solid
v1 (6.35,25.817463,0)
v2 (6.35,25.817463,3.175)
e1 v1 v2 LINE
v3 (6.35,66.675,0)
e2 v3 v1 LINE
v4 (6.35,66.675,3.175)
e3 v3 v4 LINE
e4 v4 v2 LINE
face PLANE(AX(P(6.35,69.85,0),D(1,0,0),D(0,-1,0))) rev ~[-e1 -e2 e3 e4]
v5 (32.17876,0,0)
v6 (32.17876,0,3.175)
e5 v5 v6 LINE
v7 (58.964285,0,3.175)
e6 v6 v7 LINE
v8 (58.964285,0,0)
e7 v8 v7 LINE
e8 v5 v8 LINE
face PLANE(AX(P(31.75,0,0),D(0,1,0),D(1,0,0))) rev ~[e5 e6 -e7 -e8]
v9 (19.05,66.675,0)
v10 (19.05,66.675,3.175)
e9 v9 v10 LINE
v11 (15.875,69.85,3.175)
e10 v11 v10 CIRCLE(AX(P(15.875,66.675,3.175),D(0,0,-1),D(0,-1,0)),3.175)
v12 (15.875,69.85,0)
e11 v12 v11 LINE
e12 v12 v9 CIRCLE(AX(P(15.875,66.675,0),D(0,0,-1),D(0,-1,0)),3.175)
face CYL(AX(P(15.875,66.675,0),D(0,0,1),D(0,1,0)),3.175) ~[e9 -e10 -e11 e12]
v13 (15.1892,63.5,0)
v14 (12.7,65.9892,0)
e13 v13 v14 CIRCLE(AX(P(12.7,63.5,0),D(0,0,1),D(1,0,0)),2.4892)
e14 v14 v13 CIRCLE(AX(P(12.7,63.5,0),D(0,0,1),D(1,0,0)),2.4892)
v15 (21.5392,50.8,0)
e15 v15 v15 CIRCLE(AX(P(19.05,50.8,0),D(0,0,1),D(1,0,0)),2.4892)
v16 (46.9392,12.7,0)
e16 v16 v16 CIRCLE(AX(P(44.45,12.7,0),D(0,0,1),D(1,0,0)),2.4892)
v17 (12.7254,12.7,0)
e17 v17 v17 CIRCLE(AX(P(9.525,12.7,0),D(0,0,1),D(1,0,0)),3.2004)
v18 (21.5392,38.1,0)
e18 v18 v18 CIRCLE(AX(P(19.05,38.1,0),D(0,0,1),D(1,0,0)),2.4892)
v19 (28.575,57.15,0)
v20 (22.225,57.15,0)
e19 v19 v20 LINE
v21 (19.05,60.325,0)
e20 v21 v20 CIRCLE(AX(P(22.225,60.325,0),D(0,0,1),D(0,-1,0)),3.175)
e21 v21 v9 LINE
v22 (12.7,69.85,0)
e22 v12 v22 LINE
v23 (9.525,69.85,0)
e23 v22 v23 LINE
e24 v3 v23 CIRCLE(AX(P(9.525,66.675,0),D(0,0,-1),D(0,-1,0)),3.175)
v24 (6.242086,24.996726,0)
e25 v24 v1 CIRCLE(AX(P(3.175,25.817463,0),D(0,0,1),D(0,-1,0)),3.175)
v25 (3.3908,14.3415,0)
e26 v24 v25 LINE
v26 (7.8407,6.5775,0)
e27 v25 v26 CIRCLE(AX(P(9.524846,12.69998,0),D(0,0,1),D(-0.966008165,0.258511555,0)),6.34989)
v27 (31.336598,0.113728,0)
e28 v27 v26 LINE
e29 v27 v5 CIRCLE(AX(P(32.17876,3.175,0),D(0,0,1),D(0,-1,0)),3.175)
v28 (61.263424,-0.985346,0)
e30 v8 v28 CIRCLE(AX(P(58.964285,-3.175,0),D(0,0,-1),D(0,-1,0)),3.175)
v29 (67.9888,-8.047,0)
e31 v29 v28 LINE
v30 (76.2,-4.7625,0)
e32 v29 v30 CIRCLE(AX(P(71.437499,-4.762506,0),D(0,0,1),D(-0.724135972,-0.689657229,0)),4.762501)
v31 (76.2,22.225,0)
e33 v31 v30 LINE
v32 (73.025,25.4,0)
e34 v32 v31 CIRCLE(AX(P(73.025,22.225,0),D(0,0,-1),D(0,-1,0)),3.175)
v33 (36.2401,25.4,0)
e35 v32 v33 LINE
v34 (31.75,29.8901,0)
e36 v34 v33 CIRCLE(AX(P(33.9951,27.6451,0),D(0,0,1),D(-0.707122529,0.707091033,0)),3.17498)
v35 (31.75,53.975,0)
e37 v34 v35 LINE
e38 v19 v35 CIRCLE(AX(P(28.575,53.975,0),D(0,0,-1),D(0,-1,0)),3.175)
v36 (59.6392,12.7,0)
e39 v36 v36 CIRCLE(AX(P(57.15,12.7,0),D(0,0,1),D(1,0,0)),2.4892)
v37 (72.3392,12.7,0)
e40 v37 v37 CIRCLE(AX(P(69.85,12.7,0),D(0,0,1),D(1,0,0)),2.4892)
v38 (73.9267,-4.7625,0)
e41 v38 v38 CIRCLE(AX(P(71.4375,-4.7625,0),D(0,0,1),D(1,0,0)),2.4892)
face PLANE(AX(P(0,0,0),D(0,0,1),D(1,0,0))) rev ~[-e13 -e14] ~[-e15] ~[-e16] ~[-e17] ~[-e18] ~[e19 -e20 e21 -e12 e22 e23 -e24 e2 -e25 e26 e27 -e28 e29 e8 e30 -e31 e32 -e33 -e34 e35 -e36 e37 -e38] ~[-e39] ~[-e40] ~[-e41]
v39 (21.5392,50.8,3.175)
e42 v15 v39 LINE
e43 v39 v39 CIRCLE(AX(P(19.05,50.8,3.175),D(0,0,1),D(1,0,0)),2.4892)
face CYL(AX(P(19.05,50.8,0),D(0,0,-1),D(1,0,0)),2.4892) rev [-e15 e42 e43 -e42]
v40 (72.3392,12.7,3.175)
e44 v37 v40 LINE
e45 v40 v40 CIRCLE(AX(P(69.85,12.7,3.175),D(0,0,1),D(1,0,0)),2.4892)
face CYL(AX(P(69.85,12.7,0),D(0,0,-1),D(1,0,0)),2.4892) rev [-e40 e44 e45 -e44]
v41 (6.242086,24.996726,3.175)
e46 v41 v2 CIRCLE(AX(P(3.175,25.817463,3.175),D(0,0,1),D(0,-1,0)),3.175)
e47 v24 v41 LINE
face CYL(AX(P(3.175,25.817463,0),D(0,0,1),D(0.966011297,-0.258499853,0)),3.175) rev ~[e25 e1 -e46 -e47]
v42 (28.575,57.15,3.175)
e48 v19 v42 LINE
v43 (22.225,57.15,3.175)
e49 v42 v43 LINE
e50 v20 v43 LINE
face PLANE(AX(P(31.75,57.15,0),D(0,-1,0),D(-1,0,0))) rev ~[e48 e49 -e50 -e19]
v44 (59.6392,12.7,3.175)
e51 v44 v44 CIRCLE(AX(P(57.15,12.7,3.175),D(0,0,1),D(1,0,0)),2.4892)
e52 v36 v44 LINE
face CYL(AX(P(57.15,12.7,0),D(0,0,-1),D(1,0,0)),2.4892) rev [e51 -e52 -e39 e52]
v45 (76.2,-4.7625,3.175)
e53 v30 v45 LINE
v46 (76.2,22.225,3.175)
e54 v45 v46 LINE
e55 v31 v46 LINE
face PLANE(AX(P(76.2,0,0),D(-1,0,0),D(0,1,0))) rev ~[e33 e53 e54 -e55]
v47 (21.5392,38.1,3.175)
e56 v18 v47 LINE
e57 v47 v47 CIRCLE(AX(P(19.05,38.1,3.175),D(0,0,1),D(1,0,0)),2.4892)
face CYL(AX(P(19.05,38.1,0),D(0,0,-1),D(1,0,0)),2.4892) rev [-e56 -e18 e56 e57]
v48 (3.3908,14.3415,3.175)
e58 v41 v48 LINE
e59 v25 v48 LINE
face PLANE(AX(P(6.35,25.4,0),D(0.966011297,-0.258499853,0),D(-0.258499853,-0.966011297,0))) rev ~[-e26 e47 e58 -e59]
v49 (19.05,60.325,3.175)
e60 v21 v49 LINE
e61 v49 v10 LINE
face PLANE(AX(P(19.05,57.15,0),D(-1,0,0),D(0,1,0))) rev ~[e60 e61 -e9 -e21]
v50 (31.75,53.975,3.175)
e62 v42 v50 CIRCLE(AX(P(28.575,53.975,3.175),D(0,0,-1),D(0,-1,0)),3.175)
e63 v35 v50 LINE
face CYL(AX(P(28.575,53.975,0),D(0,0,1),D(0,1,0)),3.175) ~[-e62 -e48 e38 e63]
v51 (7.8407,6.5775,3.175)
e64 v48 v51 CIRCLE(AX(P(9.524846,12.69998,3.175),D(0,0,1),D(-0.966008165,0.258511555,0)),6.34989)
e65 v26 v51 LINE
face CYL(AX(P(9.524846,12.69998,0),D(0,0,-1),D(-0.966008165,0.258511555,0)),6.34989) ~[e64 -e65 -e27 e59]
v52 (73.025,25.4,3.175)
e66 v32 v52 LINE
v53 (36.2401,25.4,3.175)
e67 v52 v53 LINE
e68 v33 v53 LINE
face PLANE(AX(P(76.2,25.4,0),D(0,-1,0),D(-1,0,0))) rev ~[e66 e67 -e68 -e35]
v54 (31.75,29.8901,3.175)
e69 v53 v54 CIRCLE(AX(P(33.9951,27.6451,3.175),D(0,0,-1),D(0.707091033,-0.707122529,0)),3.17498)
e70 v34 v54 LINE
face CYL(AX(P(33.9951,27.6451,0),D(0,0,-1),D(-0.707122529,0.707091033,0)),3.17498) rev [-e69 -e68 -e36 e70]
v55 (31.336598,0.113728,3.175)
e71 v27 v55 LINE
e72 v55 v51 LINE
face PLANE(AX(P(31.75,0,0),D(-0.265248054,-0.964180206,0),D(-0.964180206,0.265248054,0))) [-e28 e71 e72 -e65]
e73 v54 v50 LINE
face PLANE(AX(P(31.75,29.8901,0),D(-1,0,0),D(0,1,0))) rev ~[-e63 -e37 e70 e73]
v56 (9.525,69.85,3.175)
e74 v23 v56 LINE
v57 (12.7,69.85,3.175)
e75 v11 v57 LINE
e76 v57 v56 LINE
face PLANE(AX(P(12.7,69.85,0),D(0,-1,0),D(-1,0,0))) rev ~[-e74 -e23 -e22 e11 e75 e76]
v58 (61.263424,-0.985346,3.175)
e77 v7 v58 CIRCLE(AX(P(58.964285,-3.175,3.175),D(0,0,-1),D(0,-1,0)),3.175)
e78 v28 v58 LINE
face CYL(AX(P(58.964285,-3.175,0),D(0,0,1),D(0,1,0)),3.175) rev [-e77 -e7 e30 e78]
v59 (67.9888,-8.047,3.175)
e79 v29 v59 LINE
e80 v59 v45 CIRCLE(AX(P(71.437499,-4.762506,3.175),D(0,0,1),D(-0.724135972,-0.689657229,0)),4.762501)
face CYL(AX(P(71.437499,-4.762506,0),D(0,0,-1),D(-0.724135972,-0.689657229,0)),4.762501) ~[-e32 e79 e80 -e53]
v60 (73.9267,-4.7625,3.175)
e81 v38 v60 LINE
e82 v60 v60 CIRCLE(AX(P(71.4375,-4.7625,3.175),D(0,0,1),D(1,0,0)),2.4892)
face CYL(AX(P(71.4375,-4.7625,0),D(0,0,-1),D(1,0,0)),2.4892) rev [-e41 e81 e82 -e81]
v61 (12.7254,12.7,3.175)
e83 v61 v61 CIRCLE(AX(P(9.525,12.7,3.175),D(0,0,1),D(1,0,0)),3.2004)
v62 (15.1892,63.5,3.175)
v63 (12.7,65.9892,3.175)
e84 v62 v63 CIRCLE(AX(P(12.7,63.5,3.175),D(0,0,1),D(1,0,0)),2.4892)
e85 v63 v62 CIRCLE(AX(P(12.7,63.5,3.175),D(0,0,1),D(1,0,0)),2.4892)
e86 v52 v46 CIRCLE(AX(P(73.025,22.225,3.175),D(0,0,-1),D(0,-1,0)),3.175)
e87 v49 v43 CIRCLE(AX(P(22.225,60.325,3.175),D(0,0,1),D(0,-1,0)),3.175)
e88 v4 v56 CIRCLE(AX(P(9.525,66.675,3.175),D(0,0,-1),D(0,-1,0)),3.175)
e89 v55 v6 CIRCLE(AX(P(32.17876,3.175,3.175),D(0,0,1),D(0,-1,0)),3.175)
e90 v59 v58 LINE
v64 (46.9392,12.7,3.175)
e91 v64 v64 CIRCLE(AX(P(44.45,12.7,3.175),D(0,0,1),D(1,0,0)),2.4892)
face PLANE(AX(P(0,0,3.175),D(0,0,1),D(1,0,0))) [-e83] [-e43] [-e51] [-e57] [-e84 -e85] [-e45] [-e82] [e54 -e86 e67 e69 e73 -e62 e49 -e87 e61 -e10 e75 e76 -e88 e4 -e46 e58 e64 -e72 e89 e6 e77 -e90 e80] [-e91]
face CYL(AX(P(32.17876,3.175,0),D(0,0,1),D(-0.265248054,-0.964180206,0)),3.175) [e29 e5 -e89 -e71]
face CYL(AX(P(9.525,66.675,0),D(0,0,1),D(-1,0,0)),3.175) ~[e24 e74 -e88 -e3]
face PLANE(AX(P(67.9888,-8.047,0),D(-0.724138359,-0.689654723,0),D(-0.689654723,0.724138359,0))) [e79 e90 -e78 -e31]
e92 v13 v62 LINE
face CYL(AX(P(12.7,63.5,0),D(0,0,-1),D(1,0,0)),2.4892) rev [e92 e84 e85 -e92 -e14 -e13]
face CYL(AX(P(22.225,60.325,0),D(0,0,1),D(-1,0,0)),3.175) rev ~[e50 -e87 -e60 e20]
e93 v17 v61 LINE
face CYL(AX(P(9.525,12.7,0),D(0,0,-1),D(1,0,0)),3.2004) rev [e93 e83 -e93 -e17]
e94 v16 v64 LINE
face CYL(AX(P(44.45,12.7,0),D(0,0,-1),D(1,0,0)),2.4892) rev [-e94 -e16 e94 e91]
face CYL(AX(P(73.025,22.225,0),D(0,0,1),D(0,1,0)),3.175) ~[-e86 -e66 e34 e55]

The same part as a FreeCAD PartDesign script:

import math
import FreeCAD as App
import Part
import Sketcher

V = App.Vector
Q = App.Units.Quantity


def edges_at(feature, points):
    """Names of the edges that pass closest to the given points."""
    edges = feature.Shape.Edges
    near = lambda p: min(range(len(edges)), key=lambda i: edges[i].distToShape(Part.Vertex(*p))[0])
    return sorted({f"Edge{near(p) + 1}" for p in points})

doc = App.newDocument("Part")
body = doc.addObject("PartDesign::Body", "Body")

sketch1 = body.newObject("Sketcher::SketchObject", "Sketch")
sketch1.AttachmentSupport = (doc.getObject("XY_Plane"), [""])
sketch1.MapMode = "FlatFace"
sketch1.addGeometry(Part.LineSegment(V(7.8, 6.6, 0), V(31.8, 0, 0)), False)
sketch1.addGeometry(Part.LineSegment(V(31.8, 0, 0), V(60.3, 0, 0)), False)
sketch1.addGeometry(Part.LineSegment(V(60.3, 0, 0), V(68, -8, 0)), False)
sketch1.addGeometry(Part.ArcOfCircle(Part.Circle(V(71.4, -4.8, 0), V(0, 0, 1), 4.8), math.radians(-136), math.radians(0)), False)
sketch1.addGeometry(Part.LineSegment(V(76.2, -4.8, 0), V(76.2, 25.4, 0)), False)
sketch1.addGeometry(Part.LineSegment(V(76.2, 25.4, 0), V(36.2, 25.4, 0)), False)
sketch1.addGeometry(Part.ArcOfCircle(Part.Circle(V(34, 27.6, 0), V(0, 0, 1), 3.2), math.radians(135), math.radians(315)), False)
sketch1.addGeometry(Part.LineSegment(V(31.8, 29.9, 0), V(31.8, 57.1, 0)), False)
sketch1.addGeometry(Part.LineSegment(V(31.8, 57.1, 0), V(19.1, 57.1, 0)), False)
sketch1.addGeometry(Part.LineSegment(V(19.1, 57.1, 0), V(19.1, 69.8, 0)), False)
sketch1.addGeometry(Part.LineSegment(V(19.1, 69.8, 0), V(12.7, 69.8, 0)), False)
sketch1.addGeometry(Part.LineSegment(V(12.7, 69.8, 0), V(6.3, 69.8, 0)), False)
sketch1.addGeometry(Part.LineSegment(V(6.3, 69.8, 0), V(6.3, 25.4, 0)), False)
sketch1.addGeometry(Part.LineSegment(V(6.3, 25.4, 0), V(3.4, 14.3, 0)), False)
sketch1.addGeometry(Part.ArcOfCircle(Part.Circle(V(9.5, 12.7, 0), V(0, 0, 1), 6.4), math.radians(165), math.radians(255)), False)
sketch1.addGeometry(Part.Circle(V(9.5, 12.7, 0), V(0, 0, 1), 3.2), False)
sketch1.addGeometry(Part.Circle(V(44.5, 12.7, 0), V(0, 0, 1), 2.5), False)
sketch1.addGeometry(Part.Circle(V(57.1, 12.7, 0), V(0, 0, 1), 2.5), False)
sketch1.addGeometry(Part.Circle(V(69.8, 12.7, 0), V(0, 0, 1), 2.5), False)
sketch1.addGeometry(Part.Circle(V(19.1, 38.1, 0), V(0, 0, 1), 2.5), False)
sketch1.addGeometry(Part.Circle(V(19.1, 50.8, 0), V(0, 0, 1), 2.5), False)
sketch1.addGeometry(Part.Circle(V(12.7, 63.5, 0), V(0, 0, 1), 2.5), False)
sketch1.addGeometry(Part.Circle(V(71.4, -4.8, 0), V(0, 0, 1), 2.5), False)
sketch1.addConstraint(Sketcher.Constraint("Coincident", 0, 2, 1, 1))
sketch1.addConstraint(Sketcher.Constraint("Coincident", 1, 2, 2, 1))
sketch1.addConstraint(Sketcher.Constraint("Tangent", 2, 2, 3, 1))
sketch1.addConstraint(Sketcher.Constraint("Tangent", 3, 2, 4, 1))
sketch1.addConstraint(Sketcher.Constraint("Coincident", 4, 2, 5, 1))
sketch1.addConstraint(Sketcher.Constraint("Coincident", 5, 2, 6, 2))
sketch1.addConstraint(Sketcher.Constraint("Coincident", 6, 1, 7, 1))
sketch1.addConstraint(Sketcher.Constraint("Coincident", 7, 2, 8, 1))
sketch1.addConstraint(Sketcher.Constraint("Coincident", 8, 2, 9, 1))
sketch1.addConstraint(Sketcher.Constraint("Coincident", 9, 2, 10, 1))
sketch1.addConstraint(Sketcher.Constraint("Coincident", 10, 2, 11, 1))
sketch1.addConstraint(Sketcher.Constraint("Coincident", 11, 2, 12, 1))
sketch1.addConstraint(Sketcher.Constraint("Coincident", 12, 2, 13, 1))
sketch1.addConstraint(Sketcher.Constraint("Tangent", 13, 2, 14, 1))
sketch1.addConstraint(Sketcher.Constraint("Tangent", 14, 2, 0, 1))
sketch1.addConstraint(Sketcher.Constraint("Horizontal", 1))
sketch1.addConstraint(Sketcher.Constraint("Vertical", 4))
sketch1.addConstraint(Sketcher.Constraint("Horizontal", 5))
sketch1.addConstraint(Sketcher.Constraint("Vertical", 7))
sketch1.addConstraint(Sketcher.Constraint("Horizontal", 8))
sketch1.addConstraint(Sketcher.Constraint("Vertical", 9))
sketch1.addConstraint(Sketcher.Constraint("Horizontal", 10))
sketch1.addConstraint(Sketcher.Constraint("Horizontal", 11))
sketch1.addConstraint(Sketcher.Constraint("Vertical", 12))
sketch1.addConstraint(Sketcher.Constraint("Coincident", 15, 3, 14, 3))
sketch1.addConstraint(Sketcher.Constraint("Coincident", 22, 3, 3, 3))
sketch1.addConstraint(Sketcher.Constraint("Equal", 16, 17))
sketch1.addConstraint(Sketcher.Constraint("Equal", 17, 18))
sketch1.addConstraint(Sketcher.Constraint("Equal", 18, 19))
sketch1.addConstraint(Sketcher.Constraint("Equal", 19, 20))
sketch1.addConstraint(Sketcher.Constraint("Equal", 20, 21))
sketch1.addConstraint(Sketcher.Constraint("Equal", 21, 22))
sketch1.addConstraint(Sketcher.Constraint("PointOnObject", 0, 2, -1))
sketch1.addConstraint(Sketcher.Constraint("Horizontal", 15, 3, 16, 3))
sketch1.addConstraint(Sketcher.Constraint("Horizontal", 16, 3, 17, 3))
sketch1.addConstraint(Sketcher.Constraint("Horizontal", 17, 3, 18, 3))
sketch1.addConstraint(Sketcher.Constraint("Horizontal", 5, 2, 12, 2))
sketch1.addConstraint(Sketcher.Constraint("Vertical", 19, 3, 20, 3))
sketch1.addConstraint(Sketcher.Constraint("Vertical", 0, 2, 6, 1))
sketch1.addConstraint(Sketcher.Constraint("Vertical", 20, 3, 8, 2))
sketch1.addConstraint(Sketcher.Constraint("Vertical", 21, 3, 10, 2))
sketch1.addConstraint(Sketcher.Constraint("Equal", 10, 11))
sketch1.addConstraint(Sketcher.Constraint("Equal", 8, 9))
sketch1.addConstraint(Sketcher.Constraint("Radius", 14, Q("0.25 in")))
sketch1.addConstraint(Sketcher.Constraint("Diameter", 15, Q("0.252 in")))
sketch1.addConstraint(Sketcher.Constraint("Diameter", 16, Q("0.196 in")))
sketch1.addConstraint(Sketcher.Constraint("DistanceX", 8, 2, 8, 1, Q("0.5 in")))
sketch1.addConstraint(Sketcher.Constraint("DistanceY", -1, 1, 4, 2, Q("1 in")))
sketch1.addConstraint(Sketcher.Constraint("Radius", 3, Q("0.1875 in")))
sketch1.addConstraint(Sketcher.Constraint("Radius", 6, Q("0.125 in")))
sketch1.addConstraint(Sketcher.Constraint("DistanceX", 16, 3, 18, 3, Q("1 in")))
sketch1.addConstraint(Sketcher.Constraint("DistanceY", 14, 3, 19, 3, Q("1 in")))
sketch1.addConstraint(Sketcher.Constraint("DistanceX", 19, 3, 16, 3, Q("1 in")))
sketch1.addConstraint(Sketcher.Constraint("DistanceY", 19, 3, 21, 3, Q("1 in")))
sketch1.addConstraint(Sketcher.Constraint("DistanceX", 0, 2, 17, 3, Q("1 in")))
sketch1.addConstraint(Sketcher.Constraint("DistanceX", 12, 2, 6, 1, Q("1 in")))
sketch1.addConstraint(Sketcher.Constraint("DistanceY", -1, 1, 14, 3, Q("0.5 in")))
sketch1.addConstraint(Sketcher.Constraint("DistanceX", -1, 1, 21, 3, Q("0.5 in")))
sketch1.addConstraint(Sketcher.Constraint("DistanceY", 19, 3, 20, 3, Q("0.5 in")))
sketch1.addConstraint(Sketcher.Constraint("DistanceX", 18, 3, 3, 2, Q("0.25 in")))
sketch1.addConstraint(Sketcher.Constraint("DistanceY", 20, 3, 7, 2, Q("0.25 in")))
sketch1.addConstraint(Sketcher.Constraint("DistanceX", -1, 1, 14, 3, Q("0.375 in")))
sketch1.addConstraint(Sketcher.Constraint("DistanceX", 17, 3, 1, 2, Q("0.125 in")))
sketch1.addConstraint(Sketcher.Constraint("DistanceY", 4, 1, 4, 2, Q("1.1875 in")))
sketch1.addConstraint(Sketcher.Constraint("DistanceX", 5, 2, 5, 1, 39.96))
sketch1.addConstraint(Sketcher.Constraint("DistanceX", -1, 1, 6, 3, Q("1.3384 in")))
pad1 = body.newObject("PartDesign::Pad", "Pad")
pad1.Profile = sketch1
pad1.Length = Q("0.125 in")
doc.recompute()

fillet = body.newObject("PartDesign::Fillet", "Fillet")
fillet.Base = (pad1, edges_at(pad1, [
    (6.35, 69.85, 1.587),
    (19.05, 69.85, 1.587),
    (76.2, 25.4, 1.587),
    (6.35, 25.4, 1.587),
    (31.75, 0, 1.587),
    (31.75, 57.15, 1.587),
    (19.05, 57.15, 1.587),
    (60.325, 0, 1.587),
]))
fillet.Radius = Q("0.125 in")

doc.recompute()
